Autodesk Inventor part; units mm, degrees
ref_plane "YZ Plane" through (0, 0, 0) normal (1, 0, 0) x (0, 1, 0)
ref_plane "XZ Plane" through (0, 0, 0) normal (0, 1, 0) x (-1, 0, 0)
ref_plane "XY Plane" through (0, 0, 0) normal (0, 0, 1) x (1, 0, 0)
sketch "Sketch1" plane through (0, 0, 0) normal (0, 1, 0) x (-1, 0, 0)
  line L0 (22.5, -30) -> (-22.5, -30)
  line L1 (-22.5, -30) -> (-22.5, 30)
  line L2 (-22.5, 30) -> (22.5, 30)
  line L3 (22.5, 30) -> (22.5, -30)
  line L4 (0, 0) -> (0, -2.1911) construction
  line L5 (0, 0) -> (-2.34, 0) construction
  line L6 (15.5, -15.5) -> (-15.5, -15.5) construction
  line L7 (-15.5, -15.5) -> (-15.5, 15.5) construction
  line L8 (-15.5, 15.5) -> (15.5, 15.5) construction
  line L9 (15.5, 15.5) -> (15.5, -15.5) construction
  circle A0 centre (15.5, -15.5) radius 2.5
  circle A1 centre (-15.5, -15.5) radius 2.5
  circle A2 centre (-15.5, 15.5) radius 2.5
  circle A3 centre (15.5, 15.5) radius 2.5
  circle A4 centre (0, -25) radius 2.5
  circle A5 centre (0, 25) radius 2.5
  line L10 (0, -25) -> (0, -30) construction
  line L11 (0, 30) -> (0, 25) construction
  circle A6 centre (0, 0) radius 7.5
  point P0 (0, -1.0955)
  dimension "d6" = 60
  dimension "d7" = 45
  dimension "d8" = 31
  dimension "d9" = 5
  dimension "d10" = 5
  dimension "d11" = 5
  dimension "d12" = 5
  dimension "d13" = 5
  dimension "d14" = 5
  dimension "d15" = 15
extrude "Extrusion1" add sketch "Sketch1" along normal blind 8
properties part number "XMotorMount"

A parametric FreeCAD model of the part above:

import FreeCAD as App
import Part
import Sketcher

doc = App.newDocument("Part")
body = doc.addObject("PartDesign::Body", "Body")

# Sketch on XZ plane
sketch1 = body.newObject("Sketcher::SketchObject", "Sketch")
sketch1.AttachmentSupport = (doc.getObject("XZ_Plane"), [""])
sketch1.MapMode = "FlatFace"
sketch1.addGeometry(Part.LineSegment(App.Vector(22.5, -30, 0), App.Vector(-22.5, -30, 0)), False)
sketch1.addGeometry(Part.LineSegment(App.Vector(-22.5, -30, 0), App.Vector(-22.5, 30, 0)), False)
sketch1.addGeometry(Part.LineSegment(App.Vector(-22.5, 30, 0), App.Vector(22.5, 30, 0)), False)
sketch1.addGeometry(Part.LineSegment(App.Vector(22.5, 30, 0), App.Vector(22.5, -30, 0)), False)
sketch1.addGeometry(Part.Circle(App.Vector(15.5, -15.5, 0), App.Vector(0, 0, 1), 2.5), False)
sketch1.addGeometry(Part.Circle(App.Vector(0, -25, 0), App.Vector(0, 0, 1), 2.5), False)
sketch1.addGeometry(Part.Circle(App.Vector(-15.5, -15.5, 0), App.Vector(0, 0, 1), 2.5), False)
sketch1.addGeometry(Part.Circle(App.Vector(15.5, 15.5, 0), App.Vector(0, 0, 1), 2.5), False)
sketch1.addGeometry(Part.Circle(App.Vector(0, 0, 0), App.Vector(0, 0, 1), 7.5), False)
sketch1.addGeometry(Part.Circle(App.Vector(0, 25, 0), App.Vector(0, 0, 1), 2.5), False)
sketch1.addGeometry(Part.Circle(App.Vector(-15.5, 15.5, 0), App.Vector(0, 0, 1), 2.5), False)
sketch1.addConstraint(Sketcher.Constraint("Coincident", 0, 2, 1, 1))
sketch1.addConstraint(Sketcher.Constraint("Coincident", 1, 2, 2, 1))
sketch1.addConstraint(Sketcher.Constraint("Coincident", 2, 2, 3, 1))
sketch1.addConstraint(Sketcher.Constraint("Coincident", 3, 2, 0, 1))
sketch1.addConstraint(Sketcher.Constraint("Horizontal", 0))
sketch1.addConstraint(Sketcher.Constraint("Vertical", 1))
sketch1.addConstraint(Sketcher.Constraint("Horizontal", 2))
sketch1.addConstraint(Sketcher.Constraint("Vertical", 3))
sketch1.addConstraint(Sketcher.Constraint("Coincident", 8, 3, -1, 1))
sketch1.addConstraint(Sketcher.Constraint("Equal", 4, 5))
sketch1.addConstraint(Sketcher.Constraint("Equal", 5, 6))
sketch1.addConstraint(Sketcher.Constraint("Equal", 6, 7))
sketch1.addConstraint(Sketcher.Constraint("Equal", 7, 9))
sketch1.addConstraint(Sketcher.Constraint("Equal", 9, 10))
sketch1.addConstraint(Sketcher.Constraint("Symmetric", 6, 3, 7, 3, -1, 1))
sketch1.addConstraint(Sketcher.Constraint("Symmetric", 5, 3, 9, 3, -1, 1))
sketch1.addConstraint(Sketcher.Constraint("Symmetric", 4, 3, 10, 3, -1, 1))
sketch1.addConstraint(Sketcher.Constraint("Symmetric", 0, 2, 2, 2, -1, 1))
sketch1.addConstraint(Sketcher.Constraint("Symmetric", 4, 3, 6, 3, -2))
sketch1.addConstraint(Sketcher.Constraint("PointOnObject", 5, 3, -2))
sketch1.addConstraint(Sketcher.Constraint("Diameter", 4, 5.0))
sketch1.addConstraint(Sketcher.Constraint("Diameter", 8, 15.0))
sketch1.addConstraint(Sketcher.Constraint("DistanceX", 0, 2, 0, 1, 45.0))
sketch1.addConstraint(Sketcher.Constraint("DistanceY", 1, 1, 1, 2, 60.0))
sketch1.addConstraint(Sketcher.Constraint("DistanceX", 6, 3, 4, 3, 31.0))
sketch1.addConstraint(Sketcher.Constraint("DistanceY", 4, 3, 7, 3, 31.0))
sketch1.addConstraint(Sketcher.Constraint("DistanceY", 0, 2, 5, 3, 5.0))
pad1 = body.newObject("PartDesign::Pad", "Pad")
pad1.Profile = sketch1
pad1.Length = 8
pad1.Reversed = True

doc.recompute()
